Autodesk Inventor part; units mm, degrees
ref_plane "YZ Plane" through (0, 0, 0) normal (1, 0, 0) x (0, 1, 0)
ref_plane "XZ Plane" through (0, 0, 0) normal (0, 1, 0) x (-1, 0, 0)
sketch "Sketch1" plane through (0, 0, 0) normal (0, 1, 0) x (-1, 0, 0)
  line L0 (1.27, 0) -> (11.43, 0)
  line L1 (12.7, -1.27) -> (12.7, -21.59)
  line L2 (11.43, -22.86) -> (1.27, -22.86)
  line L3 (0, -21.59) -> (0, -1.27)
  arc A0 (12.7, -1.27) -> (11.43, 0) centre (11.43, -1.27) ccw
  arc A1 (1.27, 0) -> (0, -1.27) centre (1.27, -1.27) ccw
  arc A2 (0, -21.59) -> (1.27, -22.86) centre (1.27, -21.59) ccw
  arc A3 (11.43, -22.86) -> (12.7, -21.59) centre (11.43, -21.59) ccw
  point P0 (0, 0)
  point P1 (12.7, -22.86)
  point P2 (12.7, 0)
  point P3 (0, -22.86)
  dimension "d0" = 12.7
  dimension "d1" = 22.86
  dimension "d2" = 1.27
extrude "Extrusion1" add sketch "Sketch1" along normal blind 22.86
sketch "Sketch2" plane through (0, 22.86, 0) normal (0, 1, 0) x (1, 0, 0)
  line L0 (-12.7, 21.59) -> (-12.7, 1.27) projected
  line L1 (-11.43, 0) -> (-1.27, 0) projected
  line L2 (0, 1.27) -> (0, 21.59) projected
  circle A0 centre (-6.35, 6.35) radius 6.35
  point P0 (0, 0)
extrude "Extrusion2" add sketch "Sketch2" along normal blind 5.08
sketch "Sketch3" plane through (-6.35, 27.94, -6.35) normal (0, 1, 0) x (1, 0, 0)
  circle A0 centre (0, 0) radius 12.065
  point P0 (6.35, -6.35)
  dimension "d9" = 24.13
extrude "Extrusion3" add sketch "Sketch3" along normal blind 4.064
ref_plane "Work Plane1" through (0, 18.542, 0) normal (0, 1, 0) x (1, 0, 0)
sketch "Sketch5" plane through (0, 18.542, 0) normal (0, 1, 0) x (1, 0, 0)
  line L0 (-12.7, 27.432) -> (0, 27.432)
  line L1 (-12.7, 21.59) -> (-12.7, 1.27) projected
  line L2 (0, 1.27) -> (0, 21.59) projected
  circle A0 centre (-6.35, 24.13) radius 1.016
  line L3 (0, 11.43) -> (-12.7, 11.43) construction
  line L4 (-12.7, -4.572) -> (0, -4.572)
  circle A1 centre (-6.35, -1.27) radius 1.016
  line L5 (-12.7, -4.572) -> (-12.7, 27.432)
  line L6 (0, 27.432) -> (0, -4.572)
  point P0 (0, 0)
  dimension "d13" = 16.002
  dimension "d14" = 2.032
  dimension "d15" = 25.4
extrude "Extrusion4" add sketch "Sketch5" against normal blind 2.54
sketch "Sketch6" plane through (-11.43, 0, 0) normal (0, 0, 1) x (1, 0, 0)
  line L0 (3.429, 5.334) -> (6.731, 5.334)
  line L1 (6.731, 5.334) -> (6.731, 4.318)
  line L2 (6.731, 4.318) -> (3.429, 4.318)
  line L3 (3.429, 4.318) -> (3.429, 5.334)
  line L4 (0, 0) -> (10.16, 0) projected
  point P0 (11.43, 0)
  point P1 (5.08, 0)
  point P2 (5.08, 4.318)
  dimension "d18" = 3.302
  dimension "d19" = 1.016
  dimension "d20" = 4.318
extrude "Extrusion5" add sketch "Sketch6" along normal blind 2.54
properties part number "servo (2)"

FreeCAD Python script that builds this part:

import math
import FreeCAD as App
import Part
import Sketcher

V = App.Vector
Q = App.Units.Quantity


def add_polygon(sketch, points):
    """Adds a closed chain of lines whose ends are joined by coincident constraints."""
    first, n = sketch.GeometryCount, len(points)
    for a, b in zip(points, points[1:] + points[:1]):
        sketch.addGeometry(Part.LineSegment(App.Vector(*a, 0), App.Vector(*b, 0)), False)
    for i in range(n):
        sketch.addConstraint(Sketcher.Constraint("Coincident", first + i, 2, first + (i + 1) % n, 1))

doc = App.newDocument("Part")
body = doc.addObject("PartDesign::Body", "Body")

# Sketch on XZ plane
sketch1 = body.newObject("Sketcher::SketchObject", "Sketch")
sketch1.AttachmentSupport = (doc.getObject("XZ_Plane"), [""])
sketch1.MapMode = "FlatFace"
sketch1.addGeometry([
    Part.LineSegment(V(-11.4, 0, 0), V(-1.3, 0, 0)),  # 0
    Part.ArcOfCircle(Part.Circle(V(-1.3, -1.3, 0), V(0, 0, 1), 1.3), math.radians(0), math.radians(90)),  # 1
    Part.LineSegment(V(0, -1.3, 0), V(0, -21.6, 0)),  # 2
    Part.ArcOfCircle(Part.Circle(V(-1.3, -21.6, 0), V(0, 0, 1), 1.3), math.radians(-90), math.radians(0)),  # 3
    Part.LineSegment(V(-1.3, -22.9, 0), V(-11.4, -22.9, 0)),  # 4
    Part.ArcOfCircle(Part.Circle(V(-11.4, -21.6, 0), V(0, 0, 1), 1.3), math.radians(180), math.radians(270)),  # 5
    Part.LineSegment(V(-12.7, -21.6, 0), V(-12.7, -1.3, 0)),  # 6
    Part.ArcOfCircle(Part.Circle(V(-11.4, -1.3, 0), V(0, 0, 1), 1.3), math.radians(90), math.radians(180)),  # 7
], False)
sketch1.addConstraint([
    Sketcher.Constraint("Tangent", 0, 2, 1, 2),
    Sketcher.Constraint("Tangent", 1, 1, 2, 1),
    Sketcher.Constraint("Tangent", 2, 2, 3, 2),
    Sketcher.Constraint("Tangent", 3, 1, 4, 1),
    Sketcher.Constraint("Tangent", 4, 2, 5, 2),
    Sketcher.Constraint("Tangent", 5, 1, 6, 1),
    Sketcher.Constraint("Tangent", 6, 2, 7, 2),
    Sketcher.Constraint("Tangent", 7, 1, 0, 1),
    Sketcher.Constraint("Horizontal", 0),
    Sketcher.Constraint("Vertical", 2),
    Sketcher.Constraint("Horizontal", 4),
    Sketcher.Constraint("Vertical", 6),
    Sketcher.Constraint("Equal", 1, 3),
    Sketcher.Constraint("Equal", 3, 5),
    Sketcher.Constraint("Equal", 5, 7),
    Sketcher.Constraint("PointOnObject", 0, 2, -1),
    Sketcher.Constraint("PointOnObject", 1, 1, -2),
    Sketcher.Constraint("Radius", 1, Q("0.05 in")),
    Sketcher.Constraint("DistanceY", 3, 1, -1, 1, Q("0.9 in")),
    Sketcher.Constraint("DistanceX", 5, 1, -1, 1, Q("0.5 in")),
])
pad1 = body.newObject("PartDesign::Pad", "Pad")
pad1.Profile = sketch1
pad1.Length = Q("0.9 in")
pad1.Reversed = True

# Sketch on XZ plane
sketch2 = body.newObject("Sketcher::SketchObject", "Sketch001")
sketch2.AttachmentSupport = (doc.getObject("XZ_Plane"), [""])
sketch2.MapMode = "FlatFace"
sketch2.AttachmentOffset = App.Placement(V(0, 0, -0.9 * 25.4), App.Rotation())
sketch2.addGeometry(Part.Circle(V(-6, -6, 0), V(0, 0, 1), 6), False)
sketch2.addConstraint([
    Sketcher.Constraint("Diameter", 0, Q("0.5 in")),
    Sketcher.Constraint("DistanceX", 0, 3, -1, 1, Q("0.25 in")),
    Sketcher.Constraint("DistanceY", 0, 3, -1, 1, Q("0.25 in")),
])
pad2 = body.newObject("PartDesign::Pad", "Pad001")
pad2.Profile = sketch2
pad2.Length = Q("0.2 in")
pad2.Reversed = True

# Sketch on XZ plane
sketch3 = body.newObject("Sketcher::SketchObject", "Sketch002")
sketch3.AttachmentSupport = (doc.getObject("XZ_Plane"), [""])
sketch3.MapMode = "FlatFace"
sketch3.AttachmentOffset = App.Placement(V(0, 0, -1.1 * 25.4), App.Rotation())
sketch3.addGeometry(Part.Circle(V(-6, -6, 0), V(0, 0, 1), 12), False)
sketch3.addConstraint([
    Sketcher.Constraint("Diameter", 0, Q("0.95 in")),
    Sketcher.Constraint("DistanceX", 0, 3, -1, 1, Q("0.25 in")),
    Sketcher.Constraint("DistanceY", 0, 3, -1, 1, Q("0.25 in")),
])
pad3 = body.newObject("PartDesign::Pad", "Pad002")
pad3.Profile = sketch3
pad3.Length = Q("0.16 in")
pad3.Reversed = True

# Sketch on XZ plane
sketch4 = body.newObject("Sketcher::SketchObject", "Sketch003")
sketch4.AttachmentSupport = (doc.getObject("XZ_Plane"), [""])
sketch4.MapMode = "FlatFace"
sketch4.AttachmentOffset = App.Placement(V(0, 0, -0.73 * 25.4), App.Rotation())
add_polygon(sketch4, [(0, -27.4), (-12.7, -27.4), (-12.7, 4.6), (0, 4.6)])  # lines 0-3
sketch4.addGeometry(Part.Circle(V(-6.3, 1.3, 0), V(0, 0, 1), 1), False)  # 4
sketch4.addGeometry(Part.Circle(V(-6.3, -24.1, 0), V(0, 0, 1), 1), False)  # 5
sketch4.addConstraint([
    Sketcher.Constraint("Horizontal", 0),
    Sketcher.Constraint("Vertical", 1),
    Sketcher.Constraint("Horizontal", 2),
    Sketcher.Constraint("Vertical", 3),
    Sketcher.Constraint("Equal", 4, 5),
    Sketcher.Constraint("PointOnObject", 2, 2, -2),
    Sketcher.Constraint("Vertical", 4, 3, 5, 3),
    Sketcher.Constraint("Diameter", 4, Q("0.08 in")),
    Sketcher.Constraint("DistanceY", 5, 3, 4, 3, Q("1 in")),
    Sketcher.Constraint("DistanceX", 0, 2, 0, 1, Q("0.5 in")),
    Sketcher.Constraint("DistanceY", 1, 1, 1, 2, Q("1.26 in")),
    Sketcher.Constraint("DistanceX", 4, 3, -1, 1, Q("0.25 in")),
    Sketcher.Constraint("DistanceY", -1, 1, 4, 3, Q("0.05 in")),
    Sketcher.Constraint("DistanceY", 0, 2, -1, 1, Q("1.08 in")),
])
pad4 = body.newObject("PartDesign::Pad", "Pad003")
pad4.Profile = sketch4
pad4.Length = Q("0.1 in")

# Sketch on XY plane
sketch5 = body.newObject("Sketcher::SketchObject", "Sketch004")
sketch5.AttachmentSupport = (doc.getObject("XY_Plane"), [""])
sketch5.MapMode = "FlatFace"
add_polygon(sketch5, [(-4.7, 5.3), (-8, 5.3), (-8, 4.3), (-4.7, 4.3)])  # lines 0-3
sketch5.addConstraint([
    Sketcher.Constraint("Horizontal", 0),
    Sketcher.Constraint("Vertical", 1),
    Sketcher.Constraint("Horizontal", 2),
    Sketcher.Constraint("Vertical", 3),
    Sketcher.Constraint("DistanceX", 0, 2, 0, 1, Q("0.13 in")),
    Sketcher.Constraint("DistanceY", 1, 2, 1, 1, Q("0.04 in")),
    Sketcher.Constraint("DistanceY", -1, 1, 1, 2, Q("0.17 in")),
    Sketcher.Constraint("DistanceX", 0, 2, -1, 1, Q("0.315 in")),
])
pad5 = body.newObject("PartDesign::Pad", "Pad004")
pad5.Profile = sketch5
pad5.Length = Q("0.1 in")

doc.recompute()
